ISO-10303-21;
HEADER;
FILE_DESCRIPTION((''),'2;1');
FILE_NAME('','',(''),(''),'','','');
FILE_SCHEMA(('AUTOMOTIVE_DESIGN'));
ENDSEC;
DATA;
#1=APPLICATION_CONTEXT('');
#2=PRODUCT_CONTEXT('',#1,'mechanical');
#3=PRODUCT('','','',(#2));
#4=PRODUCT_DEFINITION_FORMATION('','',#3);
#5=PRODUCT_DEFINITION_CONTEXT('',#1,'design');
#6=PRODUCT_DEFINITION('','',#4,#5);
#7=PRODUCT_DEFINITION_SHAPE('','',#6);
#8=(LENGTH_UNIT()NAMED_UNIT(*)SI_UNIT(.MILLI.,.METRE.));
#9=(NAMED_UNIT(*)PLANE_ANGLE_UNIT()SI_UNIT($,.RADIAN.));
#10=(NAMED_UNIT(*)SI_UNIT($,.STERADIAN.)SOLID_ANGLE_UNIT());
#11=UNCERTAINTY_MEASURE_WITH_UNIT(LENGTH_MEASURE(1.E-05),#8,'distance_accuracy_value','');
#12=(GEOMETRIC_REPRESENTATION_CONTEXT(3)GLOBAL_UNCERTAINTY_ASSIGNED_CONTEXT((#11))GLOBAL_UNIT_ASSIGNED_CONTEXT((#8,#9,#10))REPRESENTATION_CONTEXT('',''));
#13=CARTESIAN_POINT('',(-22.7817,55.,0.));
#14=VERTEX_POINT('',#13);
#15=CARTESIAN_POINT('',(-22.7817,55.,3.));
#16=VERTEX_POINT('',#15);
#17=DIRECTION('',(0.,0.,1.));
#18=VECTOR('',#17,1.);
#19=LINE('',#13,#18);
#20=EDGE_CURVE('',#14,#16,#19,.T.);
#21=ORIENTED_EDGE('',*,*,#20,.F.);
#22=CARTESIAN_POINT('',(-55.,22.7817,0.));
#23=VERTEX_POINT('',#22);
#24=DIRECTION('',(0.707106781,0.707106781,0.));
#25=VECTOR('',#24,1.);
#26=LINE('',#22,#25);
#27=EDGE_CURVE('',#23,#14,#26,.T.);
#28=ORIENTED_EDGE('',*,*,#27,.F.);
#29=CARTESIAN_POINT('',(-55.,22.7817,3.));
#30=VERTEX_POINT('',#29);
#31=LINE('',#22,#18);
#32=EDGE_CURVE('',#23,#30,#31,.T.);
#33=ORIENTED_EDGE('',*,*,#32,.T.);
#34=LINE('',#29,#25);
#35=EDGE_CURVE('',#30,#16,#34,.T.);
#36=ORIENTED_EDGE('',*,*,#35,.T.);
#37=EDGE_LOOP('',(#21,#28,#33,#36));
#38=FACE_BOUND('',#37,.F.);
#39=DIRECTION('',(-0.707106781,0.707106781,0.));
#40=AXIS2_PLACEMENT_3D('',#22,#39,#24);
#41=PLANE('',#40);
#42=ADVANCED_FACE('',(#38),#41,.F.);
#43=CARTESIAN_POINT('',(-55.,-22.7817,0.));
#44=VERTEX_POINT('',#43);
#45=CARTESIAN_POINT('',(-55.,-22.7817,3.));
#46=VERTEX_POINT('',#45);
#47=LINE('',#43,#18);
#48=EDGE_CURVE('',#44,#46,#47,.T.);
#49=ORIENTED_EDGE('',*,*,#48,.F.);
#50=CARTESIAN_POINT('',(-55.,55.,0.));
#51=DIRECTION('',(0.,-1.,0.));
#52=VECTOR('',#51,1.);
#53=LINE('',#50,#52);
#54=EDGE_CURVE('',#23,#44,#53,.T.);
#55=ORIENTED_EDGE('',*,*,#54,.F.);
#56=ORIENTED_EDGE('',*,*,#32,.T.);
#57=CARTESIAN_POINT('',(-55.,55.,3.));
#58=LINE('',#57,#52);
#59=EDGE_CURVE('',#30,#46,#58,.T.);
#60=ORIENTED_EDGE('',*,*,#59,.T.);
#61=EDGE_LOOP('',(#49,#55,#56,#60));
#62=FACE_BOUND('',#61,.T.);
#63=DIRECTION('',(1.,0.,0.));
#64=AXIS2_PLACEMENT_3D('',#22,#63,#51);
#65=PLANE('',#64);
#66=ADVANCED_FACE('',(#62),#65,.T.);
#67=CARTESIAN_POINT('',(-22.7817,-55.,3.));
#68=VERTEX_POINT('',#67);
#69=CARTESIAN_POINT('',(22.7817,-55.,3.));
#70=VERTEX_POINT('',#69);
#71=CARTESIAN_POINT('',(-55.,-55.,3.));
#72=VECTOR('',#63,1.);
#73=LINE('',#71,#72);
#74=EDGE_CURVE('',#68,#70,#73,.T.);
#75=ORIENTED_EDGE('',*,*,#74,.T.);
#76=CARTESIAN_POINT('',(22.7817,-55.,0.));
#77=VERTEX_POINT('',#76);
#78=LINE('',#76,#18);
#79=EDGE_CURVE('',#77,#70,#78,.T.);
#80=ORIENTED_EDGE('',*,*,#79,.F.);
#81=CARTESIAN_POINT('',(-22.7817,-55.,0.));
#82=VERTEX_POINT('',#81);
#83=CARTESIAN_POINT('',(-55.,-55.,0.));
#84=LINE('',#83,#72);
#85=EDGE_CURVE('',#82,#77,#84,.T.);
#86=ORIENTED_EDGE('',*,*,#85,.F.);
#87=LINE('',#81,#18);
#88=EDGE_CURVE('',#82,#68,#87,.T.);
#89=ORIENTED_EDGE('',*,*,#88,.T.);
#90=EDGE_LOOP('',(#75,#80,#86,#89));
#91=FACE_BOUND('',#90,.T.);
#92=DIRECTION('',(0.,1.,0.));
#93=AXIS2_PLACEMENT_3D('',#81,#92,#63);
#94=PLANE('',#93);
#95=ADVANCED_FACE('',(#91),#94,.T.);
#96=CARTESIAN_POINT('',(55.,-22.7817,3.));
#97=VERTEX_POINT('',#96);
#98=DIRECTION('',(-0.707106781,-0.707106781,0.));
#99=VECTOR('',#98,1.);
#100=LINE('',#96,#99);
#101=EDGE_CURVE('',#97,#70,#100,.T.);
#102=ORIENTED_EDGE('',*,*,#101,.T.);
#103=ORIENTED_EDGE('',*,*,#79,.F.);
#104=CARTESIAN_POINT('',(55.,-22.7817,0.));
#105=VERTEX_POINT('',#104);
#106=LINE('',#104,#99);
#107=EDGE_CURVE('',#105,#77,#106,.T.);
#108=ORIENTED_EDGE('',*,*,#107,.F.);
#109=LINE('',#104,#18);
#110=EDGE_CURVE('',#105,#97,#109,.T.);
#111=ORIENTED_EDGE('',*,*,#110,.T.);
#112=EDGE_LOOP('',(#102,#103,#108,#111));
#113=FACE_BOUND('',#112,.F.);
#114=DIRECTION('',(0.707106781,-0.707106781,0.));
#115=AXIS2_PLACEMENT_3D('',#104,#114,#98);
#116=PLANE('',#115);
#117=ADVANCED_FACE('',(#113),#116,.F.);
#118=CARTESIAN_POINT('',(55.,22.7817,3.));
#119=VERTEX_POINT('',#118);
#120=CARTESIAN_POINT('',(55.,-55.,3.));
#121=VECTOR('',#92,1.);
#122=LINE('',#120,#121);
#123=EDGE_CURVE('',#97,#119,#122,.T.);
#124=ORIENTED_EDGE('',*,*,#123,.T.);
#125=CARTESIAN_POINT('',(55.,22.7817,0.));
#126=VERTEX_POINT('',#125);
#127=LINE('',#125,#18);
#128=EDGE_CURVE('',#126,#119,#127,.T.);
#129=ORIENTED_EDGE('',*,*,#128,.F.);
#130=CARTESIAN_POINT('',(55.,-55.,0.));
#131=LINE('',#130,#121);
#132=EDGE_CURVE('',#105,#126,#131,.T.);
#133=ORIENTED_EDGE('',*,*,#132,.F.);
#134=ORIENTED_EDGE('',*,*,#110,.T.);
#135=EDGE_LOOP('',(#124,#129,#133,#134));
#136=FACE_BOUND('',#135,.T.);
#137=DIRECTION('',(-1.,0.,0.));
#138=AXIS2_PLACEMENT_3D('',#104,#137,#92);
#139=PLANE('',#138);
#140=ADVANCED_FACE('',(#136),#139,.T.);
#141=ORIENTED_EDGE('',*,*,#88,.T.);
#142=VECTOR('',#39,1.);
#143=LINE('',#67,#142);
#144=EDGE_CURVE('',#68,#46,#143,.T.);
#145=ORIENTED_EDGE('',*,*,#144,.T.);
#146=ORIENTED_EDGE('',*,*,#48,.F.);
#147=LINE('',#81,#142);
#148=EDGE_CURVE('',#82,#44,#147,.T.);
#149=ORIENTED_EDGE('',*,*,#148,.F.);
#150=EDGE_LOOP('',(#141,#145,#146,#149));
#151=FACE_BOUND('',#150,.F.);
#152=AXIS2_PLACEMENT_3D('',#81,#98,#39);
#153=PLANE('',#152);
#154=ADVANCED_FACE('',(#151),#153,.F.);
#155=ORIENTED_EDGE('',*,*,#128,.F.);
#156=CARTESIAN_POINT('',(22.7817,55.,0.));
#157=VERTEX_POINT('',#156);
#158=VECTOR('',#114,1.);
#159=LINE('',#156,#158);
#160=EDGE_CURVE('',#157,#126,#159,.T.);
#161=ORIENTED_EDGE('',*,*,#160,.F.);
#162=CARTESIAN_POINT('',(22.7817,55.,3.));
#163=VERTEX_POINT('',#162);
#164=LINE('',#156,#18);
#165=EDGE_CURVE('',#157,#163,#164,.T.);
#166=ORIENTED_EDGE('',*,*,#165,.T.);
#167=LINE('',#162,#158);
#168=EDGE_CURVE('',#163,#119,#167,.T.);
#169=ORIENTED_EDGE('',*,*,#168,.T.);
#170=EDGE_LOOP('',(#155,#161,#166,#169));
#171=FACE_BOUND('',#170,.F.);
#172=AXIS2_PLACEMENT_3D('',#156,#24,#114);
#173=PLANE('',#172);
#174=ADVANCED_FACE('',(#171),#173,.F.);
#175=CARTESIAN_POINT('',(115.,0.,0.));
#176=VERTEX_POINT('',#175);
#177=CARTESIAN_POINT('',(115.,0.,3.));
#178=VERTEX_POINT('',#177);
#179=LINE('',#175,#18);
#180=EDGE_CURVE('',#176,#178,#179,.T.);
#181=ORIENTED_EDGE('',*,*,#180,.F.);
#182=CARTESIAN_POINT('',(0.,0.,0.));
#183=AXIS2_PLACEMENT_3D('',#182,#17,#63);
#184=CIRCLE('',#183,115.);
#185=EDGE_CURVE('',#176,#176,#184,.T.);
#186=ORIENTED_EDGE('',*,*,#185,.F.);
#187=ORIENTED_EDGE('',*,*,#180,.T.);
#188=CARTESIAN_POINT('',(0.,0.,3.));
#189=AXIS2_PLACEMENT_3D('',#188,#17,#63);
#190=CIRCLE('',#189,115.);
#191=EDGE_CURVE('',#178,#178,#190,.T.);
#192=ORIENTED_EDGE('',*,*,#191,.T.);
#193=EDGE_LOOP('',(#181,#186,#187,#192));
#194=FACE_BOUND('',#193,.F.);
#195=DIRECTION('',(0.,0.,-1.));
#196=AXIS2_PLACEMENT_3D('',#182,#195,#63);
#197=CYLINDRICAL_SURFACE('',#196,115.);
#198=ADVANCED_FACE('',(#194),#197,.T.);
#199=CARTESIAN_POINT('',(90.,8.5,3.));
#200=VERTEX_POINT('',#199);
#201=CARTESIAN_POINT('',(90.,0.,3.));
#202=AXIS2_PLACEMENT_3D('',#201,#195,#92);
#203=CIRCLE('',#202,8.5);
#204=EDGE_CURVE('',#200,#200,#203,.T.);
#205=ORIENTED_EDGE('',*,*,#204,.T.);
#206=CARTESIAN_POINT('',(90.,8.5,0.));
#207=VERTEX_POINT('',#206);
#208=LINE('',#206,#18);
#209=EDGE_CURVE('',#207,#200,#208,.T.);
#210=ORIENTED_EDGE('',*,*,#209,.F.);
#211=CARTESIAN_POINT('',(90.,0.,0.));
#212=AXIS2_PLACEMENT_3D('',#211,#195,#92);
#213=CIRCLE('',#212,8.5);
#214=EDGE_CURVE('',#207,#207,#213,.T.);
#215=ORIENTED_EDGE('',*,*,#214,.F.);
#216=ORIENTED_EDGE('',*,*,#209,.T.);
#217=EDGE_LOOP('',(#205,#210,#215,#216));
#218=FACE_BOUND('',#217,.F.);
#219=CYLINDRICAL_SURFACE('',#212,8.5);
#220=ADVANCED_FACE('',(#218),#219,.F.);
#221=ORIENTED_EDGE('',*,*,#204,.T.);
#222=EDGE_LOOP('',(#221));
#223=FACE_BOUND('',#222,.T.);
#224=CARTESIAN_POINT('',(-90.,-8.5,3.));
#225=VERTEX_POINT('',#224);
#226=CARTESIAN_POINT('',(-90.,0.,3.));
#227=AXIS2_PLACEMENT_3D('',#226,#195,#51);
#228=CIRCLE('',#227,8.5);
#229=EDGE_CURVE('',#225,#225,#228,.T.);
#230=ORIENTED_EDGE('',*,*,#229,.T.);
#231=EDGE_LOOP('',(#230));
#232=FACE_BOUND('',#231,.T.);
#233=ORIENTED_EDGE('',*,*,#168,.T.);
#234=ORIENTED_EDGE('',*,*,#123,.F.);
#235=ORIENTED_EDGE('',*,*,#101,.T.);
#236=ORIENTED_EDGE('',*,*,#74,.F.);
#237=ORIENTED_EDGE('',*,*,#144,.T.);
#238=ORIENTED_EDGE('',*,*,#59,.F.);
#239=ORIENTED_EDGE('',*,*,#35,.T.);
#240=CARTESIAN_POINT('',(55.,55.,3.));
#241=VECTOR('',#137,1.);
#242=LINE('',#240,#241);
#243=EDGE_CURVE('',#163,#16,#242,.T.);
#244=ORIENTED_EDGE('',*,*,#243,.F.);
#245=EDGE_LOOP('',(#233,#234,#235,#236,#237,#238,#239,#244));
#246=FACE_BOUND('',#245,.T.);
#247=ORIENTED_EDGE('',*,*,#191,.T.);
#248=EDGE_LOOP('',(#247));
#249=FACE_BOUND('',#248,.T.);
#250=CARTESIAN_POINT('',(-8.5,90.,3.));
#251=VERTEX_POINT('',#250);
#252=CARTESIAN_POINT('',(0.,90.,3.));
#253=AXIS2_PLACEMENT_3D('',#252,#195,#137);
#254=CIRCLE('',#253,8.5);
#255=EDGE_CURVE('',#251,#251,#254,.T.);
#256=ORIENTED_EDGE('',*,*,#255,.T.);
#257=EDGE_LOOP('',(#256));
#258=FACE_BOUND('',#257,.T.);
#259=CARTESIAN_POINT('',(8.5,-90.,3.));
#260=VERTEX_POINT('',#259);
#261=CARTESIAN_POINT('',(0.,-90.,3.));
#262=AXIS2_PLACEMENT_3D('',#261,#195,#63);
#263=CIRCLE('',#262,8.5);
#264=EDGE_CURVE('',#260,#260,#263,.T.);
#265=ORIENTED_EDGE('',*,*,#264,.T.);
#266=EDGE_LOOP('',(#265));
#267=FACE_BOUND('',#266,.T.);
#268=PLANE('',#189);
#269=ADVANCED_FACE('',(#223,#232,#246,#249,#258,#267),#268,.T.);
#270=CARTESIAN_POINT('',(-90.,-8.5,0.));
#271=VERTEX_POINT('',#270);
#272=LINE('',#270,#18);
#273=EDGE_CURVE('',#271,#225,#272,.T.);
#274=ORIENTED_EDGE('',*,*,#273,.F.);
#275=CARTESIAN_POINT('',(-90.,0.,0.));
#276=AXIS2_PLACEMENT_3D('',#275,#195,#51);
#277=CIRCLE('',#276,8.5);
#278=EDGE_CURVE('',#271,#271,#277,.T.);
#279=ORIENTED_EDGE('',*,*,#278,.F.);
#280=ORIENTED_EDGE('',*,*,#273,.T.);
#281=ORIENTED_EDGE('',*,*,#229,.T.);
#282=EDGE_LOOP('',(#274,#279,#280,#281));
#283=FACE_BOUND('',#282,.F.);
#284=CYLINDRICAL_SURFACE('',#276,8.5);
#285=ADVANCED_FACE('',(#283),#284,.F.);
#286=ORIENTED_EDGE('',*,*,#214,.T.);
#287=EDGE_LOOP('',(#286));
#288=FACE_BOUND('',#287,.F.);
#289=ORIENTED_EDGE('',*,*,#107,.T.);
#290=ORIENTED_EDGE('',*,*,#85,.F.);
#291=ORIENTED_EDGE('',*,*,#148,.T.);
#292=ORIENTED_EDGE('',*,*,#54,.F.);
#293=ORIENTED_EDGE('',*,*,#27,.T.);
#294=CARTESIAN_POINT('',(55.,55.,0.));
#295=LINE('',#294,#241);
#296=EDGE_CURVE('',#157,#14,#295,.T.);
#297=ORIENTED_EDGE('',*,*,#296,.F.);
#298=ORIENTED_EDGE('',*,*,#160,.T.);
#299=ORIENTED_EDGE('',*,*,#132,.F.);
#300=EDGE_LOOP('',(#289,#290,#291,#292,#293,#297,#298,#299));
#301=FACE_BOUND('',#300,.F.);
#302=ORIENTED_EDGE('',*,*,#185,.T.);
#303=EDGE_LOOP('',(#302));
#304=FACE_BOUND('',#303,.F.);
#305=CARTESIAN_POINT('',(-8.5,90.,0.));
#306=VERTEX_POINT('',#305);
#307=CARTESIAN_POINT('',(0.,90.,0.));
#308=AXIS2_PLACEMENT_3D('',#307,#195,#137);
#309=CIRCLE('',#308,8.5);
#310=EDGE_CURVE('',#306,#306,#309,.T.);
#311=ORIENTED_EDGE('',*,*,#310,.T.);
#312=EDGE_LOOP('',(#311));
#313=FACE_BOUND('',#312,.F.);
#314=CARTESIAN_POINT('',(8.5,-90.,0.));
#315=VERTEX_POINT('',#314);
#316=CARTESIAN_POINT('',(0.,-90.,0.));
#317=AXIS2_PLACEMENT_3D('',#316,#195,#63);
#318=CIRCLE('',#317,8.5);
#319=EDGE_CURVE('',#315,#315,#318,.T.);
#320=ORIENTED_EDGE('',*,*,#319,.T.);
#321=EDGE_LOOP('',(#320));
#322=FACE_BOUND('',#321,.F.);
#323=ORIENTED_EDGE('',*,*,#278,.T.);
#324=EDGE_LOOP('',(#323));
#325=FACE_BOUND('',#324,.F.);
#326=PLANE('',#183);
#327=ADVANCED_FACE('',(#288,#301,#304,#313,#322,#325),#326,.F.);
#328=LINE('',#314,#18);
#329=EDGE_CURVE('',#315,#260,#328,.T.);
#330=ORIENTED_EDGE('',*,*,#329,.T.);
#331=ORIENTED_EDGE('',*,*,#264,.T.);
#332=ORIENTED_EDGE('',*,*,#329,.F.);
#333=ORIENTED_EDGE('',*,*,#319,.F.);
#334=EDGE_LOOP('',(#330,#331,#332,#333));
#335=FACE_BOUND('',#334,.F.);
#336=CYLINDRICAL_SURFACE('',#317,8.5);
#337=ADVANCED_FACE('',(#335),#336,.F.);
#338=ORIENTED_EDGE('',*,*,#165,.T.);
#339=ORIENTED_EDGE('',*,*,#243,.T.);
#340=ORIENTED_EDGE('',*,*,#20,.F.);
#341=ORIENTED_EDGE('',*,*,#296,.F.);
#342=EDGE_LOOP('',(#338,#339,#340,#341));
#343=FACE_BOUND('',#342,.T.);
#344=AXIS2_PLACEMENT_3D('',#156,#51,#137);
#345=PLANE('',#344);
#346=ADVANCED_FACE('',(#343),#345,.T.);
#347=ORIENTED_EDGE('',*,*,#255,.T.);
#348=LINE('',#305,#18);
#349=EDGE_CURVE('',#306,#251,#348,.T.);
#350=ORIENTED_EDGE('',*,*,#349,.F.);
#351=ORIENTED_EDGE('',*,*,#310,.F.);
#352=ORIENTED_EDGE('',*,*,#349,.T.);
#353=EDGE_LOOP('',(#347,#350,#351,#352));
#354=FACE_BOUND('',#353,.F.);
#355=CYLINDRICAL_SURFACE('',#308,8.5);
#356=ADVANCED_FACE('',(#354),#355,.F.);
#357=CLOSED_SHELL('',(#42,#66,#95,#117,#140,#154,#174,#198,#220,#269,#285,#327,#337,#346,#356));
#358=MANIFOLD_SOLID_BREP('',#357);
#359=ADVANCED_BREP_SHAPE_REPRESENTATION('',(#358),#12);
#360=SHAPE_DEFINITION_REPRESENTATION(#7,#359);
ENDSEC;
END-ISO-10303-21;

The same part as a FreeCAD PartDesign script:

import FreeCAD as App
import Part
import Sketcher

V = App.Vector

doc = App.newDocument("Part")
body = doc.addObject("PartDesign::Body", "Body")

# Sketch on XY plane
sketch1 = body.newObject("Sketcher::SketchObject", "Sketch")
sketch1.AttachmentSupport = (doc.getObject("XY_Plane"), [""])
sketch1.MapMode = "FlatFace"
sketch1.addGeometry([
    Part.Circle(V(0, 0, 0), V(0, 0, 1), 115),  # 0
    Part.LineSegment(V(-22.7817, 55, 0), V(22.7817, 55, 0)),  # 1
    Part.LineSegment(V(22.7817, 55, 0), V(55, 22.7817, 0)),  # 2
    Part.LineSegment(V(55, 22.7817, 0), V(55, -22.7817, 0)),  # 3
    Part.LineSegment(V(55, -22.7817, 0), V(22.7817, -55, 0)),  # 4
    Part.LineSegment(V(22.7817, -55, 0), V(-22.7817, -55, 0)),  # 5
    Part.LineSegment(V(-22.7817, -55, 0), V(-55, -22.7817, 0)),  # 6
    Part.LineSegment(V(-55, -22.7817, 0), V(-55, 22.7817, 0)),  # 7
    Part.LineSegment(V(-55, 22.7817, 0), V(-22.7817, 55, 0)),  # 8
], False)
sketch1.addConstraint([
    Sketcher.Constraint("Coincident", 1, 2, 2, 1),
    Sketcher.Constraint("Coincident", 2, 2, 3, 1),
    Sketcher.Constraint("Coincident", 3, 2, 4, 1),
    Sketcher.Constraint("Coincident", 4, 2, 5, 1),
    Sketcher.Constraint("Coincident", 5, 2, 6, 1),
    Sketcher.Constraint("Coincident", 6, 2, 7, 1),
    Sketcher.Constraint("Coincident", 7, 2, 8, 1),
    Sketcher.Constraint("Coincident", 8, 2, 1, 1),
    Sketcher.Constraint("Horizontal", 1),
    Sketcher.Constraint("Vertical", 3),
    Sketcher.Constraint("Horizontal", 5),
    Sketcher.Constraint("Vertical", 7),
    Sketcher.Constraint("Coincident", 0, 3, -1, 1),
    Sketcher.Constraint("Symmetric", 1, 2, 5, 2, -1, 1),
    Sketcher.Constraint("Symmetric", 2, 2, 6, 2, -1, 1),
    Sketcher.Constraint("Perpendicular", 2, 4),
    Sketcher.Constraint("Perpendicular", 6, 8),
    Sketcher.Constraint("Horizontal", 3, 2, 6, 2),
    Sketcher.Constraint("Horizontal", 2, 2, 7, 2),
    Sketcher.Constraint("Vertical", 1, 2, 4, 2),
    Sketcher.Constraint("Equal", 5, 3),
    Sketcher.Constraint("Diameter", 0, 230.0),
    Sketcher.Constraint("DistanceY", 4, 2, 1, 2, 110.0),
    Sketcher.Constraint("DistanceX", 1, 1, 1, 2, 45.5634),
])
pad1 = body.newObject("PartDesign::Pad", "Pad")
pad1.Profile = sketch1
pad1.Length = 3

# Sketch on XY plane
sketch2 = body.newObject("Sketcher::SketchObject", "Sketch001")
sketch2.AttachmentSupport = (doc.getObject("XY_Plane"), [""])
sketch2.MapMode = "FlatFace"
sketch2.addGeometry(Part.Circle(V(0, 90, 0), V(0, 0, 1), 8.5), False)
sketch2.addConstraint([
    Sketcher.Constraint("PointOnObject", 0, 3, -2),
    Sketcher.Constraint("Diameter", 0, 17.0),
    Sketcher.Constraint("DistanceY", -1, 1, 0, 3, 90.0),
])
pocket1 = body.newObject("PartDesign::Pocket", "Pocket")
pocket1.Profile = sketch2
pocket1.Length = 3
pocket1.Reversed = True
doc.recompute()

polarpattern = body.newObject("PartDesign::PolarPattern", "PolarPattern")
polarpattern.Originals = [pocket1]
polarpattern.Axis = (doc.getObject("Z_Axis"), [""])
polarpattern.Angle = 360
polarpattern.Occurrences = 4
body.Tip = polarpattern

doc.recompute()
